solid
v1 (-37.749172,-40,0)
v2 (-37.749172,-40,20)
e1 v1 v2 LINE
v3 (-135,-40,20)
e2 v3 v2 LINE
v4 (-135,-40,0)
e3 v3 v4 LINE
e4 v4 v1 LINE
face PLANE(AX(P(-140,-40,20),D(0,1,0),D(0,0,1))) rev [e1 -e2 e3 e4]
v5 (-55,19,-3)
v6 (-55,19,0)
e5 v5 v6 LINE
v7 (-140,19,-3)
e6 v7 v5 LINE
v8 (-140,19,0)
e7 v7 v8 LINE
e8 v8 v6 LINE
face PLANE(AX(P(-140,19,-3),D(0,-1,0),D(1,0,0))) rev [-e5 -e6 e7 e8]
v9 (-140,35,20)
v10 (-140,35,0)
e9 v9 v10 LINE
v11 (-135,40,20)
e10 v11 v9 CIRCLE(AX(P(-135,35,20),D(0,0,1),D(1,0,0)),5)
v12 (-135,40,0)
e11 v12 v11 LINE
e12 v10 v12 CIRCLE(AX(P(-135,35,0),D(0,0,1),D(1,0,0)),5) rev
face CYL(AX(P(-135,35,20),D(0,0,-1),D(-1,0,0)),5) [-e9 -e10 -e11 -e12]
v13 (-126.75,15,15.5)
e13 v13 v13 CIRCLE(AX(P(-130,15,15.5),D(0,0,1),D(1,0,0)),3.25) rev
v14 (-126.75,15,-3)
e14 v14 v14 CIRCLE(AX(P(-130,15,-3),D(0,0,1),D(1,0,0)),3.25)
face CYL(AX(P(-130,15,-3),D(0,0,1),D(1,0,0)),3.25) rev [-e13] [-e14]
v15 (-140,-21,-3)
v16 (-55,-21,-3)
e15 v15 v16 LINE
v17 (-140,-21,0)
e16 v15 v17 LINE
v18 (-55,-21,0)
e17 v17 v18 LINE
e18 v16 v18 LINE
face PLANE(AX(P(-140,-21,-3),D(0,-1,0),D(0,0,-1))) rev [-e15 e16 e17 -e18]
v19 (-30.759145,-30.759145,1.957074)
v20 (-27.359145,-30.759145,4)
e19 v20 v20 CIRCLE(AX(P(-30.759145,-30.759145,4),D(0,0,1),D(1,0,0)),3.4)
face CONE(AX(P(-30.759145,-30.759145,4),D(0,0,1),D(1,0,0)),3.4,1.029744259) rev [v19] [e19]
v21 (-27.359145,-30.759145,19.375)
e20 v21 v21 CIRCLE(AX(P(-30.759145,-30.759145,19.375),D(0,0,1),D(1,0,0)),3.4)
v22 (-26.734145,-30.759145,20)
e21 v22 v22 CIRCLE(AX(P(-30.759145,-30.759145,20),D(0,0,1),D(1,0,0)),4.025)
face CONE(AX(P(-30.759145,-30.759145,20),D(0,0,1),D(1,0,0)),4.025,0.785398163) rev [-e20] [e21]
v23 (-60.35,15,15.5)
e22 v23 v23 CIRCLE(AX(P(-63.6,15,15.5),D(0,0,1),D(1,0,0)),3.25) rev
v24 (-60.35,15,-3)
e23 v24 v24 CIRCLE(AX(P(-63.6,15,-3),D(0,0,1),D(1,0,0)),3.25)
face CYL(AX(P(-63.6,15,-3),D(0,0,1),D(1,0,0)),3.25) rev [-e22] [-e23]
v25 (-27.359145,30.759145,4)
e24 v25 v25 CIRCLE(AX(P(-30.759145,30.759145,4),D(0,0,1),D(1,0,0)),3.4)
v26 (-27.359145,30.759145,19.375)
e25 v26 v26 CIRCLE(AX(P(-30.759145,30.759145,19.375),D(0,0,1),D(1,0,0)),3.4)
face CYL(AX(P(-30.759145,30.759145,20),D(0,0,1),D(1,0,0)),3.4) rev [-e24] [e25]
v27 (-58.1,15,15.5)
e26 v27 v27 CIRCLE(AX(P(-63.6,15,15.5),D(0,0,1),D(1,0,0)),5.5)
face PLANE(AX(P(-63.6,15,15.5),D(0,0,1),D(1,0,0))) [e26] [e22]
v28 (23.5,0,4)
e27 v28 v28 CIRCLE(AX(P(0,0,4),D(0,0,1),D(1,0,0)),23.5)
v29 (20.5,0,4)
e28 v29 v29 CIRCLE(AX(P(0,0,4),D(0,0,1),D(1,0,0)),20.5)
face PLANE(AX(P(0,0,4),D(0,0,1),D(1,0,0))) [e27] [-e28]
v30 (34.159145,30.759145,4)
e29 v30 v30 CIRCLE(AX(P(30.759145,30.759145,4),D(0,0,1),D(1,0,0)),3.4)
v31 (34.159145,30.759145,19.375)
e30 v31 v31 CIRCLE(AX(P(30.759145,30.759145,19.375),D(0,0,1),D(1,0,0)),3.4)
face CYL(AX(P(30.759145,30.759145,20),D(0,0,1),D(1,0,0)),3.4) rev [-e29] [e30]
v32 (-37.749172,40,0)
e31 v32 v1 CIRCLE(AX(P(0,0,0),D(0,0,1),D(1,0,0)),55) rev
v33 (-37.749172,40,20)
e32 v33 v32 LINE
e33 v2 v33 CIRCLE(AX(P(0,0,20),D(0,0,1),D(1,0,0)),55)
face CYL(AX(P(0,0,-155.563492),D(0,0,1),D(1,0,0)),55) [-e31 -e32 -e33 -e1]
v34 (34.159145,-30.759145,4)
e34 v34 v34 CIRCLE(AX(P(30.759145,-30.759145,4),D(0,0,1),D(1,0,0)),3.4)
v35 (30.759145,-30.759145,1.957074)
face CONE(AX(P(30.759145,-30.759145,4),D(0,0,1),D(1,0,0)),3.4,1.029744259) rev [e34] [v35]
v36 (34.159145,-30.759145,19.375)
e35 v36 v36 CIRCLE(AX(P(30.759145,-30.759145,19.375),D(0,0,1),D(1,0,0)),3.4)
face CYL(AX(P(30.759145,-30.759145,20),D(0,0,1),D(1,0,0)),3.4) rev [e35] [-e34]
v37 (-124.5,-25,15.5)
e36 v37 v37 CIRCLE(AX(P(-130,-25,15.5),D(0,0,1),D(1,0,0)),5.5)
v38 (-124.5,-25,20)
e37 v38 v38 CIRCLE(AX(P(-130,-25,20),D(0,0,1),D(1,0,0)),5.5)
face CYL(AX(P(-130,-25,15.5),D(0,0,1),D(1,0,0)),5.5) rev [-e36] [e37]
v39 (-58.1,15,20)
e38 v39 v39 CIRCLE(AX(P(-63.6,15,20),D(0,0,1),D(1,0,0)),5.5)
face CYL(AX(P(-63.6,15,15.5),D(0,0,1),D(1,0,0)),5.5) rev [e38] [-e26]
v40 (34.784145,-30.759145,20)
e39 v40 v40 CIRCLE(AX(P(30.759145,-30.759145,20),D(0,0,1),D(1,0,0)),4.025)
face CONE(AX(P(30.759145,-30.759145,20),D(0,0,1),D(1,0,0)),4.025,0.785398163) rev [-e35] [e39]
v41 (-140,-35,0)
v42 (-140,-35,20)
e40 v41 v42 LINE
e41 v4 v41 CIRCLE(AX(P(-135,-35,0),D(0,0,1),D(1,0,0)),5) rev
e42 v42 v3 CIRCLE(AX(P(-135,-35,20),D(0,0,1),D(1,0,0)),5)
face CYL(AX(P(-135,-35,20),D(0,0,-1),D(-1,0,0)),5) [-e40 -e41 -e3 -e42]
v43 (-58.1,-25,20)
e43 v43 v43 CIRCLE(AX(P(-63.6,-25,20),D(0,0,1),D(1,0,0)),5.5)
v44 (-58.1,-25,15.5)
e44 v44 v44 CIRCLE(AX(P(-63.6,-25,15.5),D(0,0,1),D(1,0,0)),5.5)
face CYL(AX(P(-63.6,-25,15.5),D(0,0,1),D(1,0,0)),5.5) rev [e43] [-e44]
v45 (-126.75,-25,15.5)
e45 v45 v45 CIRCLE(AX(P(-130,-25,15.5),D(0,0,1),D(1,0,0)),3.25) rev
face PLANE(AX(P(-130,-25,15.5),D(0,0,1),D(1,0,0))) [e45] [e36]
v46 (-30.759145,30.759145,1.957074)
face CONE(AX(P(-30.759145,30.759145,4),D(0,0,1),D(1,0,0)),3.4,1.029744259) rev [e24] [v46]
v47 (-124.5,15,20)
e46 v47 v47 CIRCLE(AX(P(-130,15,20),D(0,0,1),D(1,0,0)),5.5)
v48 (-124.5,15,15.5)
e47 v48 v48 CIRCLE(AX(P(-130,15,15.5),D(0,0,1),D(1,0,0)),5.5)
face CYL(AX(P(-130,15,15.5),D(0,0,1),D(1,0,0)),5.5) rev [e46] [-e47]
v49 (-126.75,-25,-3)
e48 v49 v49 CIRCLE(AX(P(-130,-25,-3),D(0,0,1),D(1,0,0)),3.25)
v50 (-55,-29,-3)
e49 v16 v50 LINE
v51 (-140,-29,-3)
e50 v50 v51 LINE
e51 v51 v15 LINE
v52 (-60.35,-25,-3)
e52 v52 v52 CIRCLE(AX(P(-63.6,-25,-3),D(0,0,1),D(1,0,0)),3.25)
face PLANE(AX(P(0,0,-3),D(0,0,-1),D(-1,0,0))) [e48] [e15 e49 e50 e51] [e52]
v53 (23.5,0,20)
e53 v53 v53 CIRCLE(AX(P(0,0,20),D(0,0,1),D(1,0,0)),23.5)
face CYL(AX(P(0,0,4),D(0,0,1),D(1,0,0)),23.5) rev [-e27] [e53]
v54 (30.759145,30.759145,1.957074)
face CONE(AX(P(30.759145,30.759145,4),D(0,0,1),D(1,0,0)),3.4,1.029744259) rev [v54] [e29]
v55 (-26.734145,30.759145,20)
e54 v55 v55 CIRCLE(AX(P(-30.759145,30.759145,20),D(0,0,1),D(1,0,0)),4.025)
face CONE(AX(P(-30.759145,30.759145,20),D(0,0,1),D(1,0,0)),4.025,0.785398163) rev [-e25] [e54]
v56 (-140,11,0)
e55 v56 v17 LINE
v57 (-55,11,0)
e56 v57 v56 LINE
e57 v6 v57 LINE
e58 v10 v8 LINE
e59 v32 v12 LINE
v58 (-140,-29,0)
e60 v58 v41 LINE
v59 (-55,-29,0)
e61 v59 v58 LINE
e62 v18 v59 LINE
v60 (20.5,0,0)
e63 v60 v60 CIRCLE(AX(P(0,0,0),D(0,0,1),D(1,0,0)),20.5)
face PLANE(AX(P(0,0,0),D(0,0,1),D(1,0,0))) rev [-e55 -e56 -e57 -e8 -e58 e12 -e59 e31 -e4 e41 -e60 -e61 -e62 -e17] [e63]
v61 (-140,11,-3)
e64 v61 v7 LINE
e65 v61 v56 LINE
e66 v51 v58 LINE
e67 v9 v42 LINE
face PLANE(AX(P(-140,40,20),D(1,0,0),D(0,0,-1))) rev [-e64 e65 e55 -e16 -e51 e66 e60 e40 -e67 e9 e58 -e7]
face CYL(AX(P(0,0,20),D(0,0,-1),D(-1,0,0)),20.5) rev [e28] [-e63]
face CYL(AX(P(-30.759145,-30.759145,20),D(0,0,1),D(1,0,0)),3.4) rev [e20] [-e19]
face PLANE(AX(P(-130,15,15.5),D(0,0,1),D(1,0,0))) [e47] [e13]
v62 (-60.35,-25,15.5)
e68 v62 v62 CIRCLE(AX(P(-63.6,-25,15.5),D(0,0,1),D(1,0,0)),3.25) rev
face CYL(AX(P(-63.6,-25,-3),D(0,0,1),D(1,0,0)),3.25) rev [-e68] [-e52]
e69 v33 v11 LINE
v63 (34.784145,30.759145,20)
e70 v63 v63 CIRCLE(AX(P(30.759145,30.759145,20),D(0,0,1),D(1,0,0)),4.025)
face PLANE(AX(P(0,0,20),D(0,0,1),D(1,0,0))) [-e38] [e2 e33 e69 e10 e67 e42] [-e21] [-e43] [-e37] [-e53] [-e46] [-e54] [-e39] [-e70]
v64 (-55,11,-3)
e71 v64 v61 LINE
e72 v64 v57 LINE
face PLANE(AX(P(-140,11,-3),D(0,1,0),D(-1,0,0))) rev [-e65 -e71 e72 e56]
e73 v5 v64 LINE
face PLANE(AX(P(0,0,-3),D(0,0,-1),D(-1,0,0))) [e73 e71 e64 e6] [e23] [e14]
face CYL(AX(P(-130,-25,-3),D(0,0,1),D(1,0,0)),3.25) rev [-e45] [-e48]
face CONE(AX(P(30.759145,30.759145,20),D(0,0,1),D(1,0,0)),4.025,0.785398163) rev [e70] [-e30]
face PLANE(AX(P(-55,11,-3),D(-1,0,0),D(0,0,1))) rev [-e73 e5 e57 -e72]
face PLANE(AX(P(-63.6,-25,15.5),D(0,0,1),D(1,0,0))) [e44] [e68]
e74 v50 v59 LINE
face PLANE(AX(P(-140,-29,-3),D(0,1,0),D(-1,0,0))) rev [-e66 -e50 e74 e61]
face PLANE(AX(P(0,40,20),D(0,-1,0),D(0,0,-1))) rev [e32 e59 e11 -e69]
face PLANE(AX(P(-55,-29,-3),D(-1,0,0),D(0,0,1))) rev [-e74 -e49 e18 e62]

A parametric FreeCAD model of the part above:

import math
import FreeCAD as App
import Part
import Sketcher


def edges_at(feature, points):
    """Names of the edges that pass closest to the given points."""
    edges = feature.Shape.Edges
    near = lambda p: min(range(len(edges)), key=lambda i: edges[i].distToShape(Part.Vertex(*p))[0])
    return sorted({f"Edge{near(p) + 1}" for p in points})


def add_polygon(sketch, points):
    """Adds a closed chain of lines whose ends are joined by coincident constraints."""
    first, n = sketch.GeometryCount, len(points)
    for a, b in zip(points, points[1:] + points[:1]):
        sketch.addGeometry(Part.LineSegment(App.Vector(*a, 0), App.Vector(*b, 0)), False)
    for i in range(n):
        sketch.addConstraint(Sketcher.Constraint("Coincident", first + i, 2, first + (i + 1) % n, 1))

doc = App.newDocument("Part")
body = doc.addObject("PartDesign::Body", "Body")

# Sketch on XY plane
sketch1 = body.newObject("Sketcher::SketchObject", "Sketch")
sketch1.AttachmentSupport = (doc.getObject("XY_Plane"), [""])
sketch1.MapMode = "FlatFace"
sketch1.addGeometry(Part.LineSegment(App.Vector(0, 40, 0), App.Vector(-140, 40, 0)), False)
sketch1.addGeometry(Part.LineSegment(App.Vector(-140, 40, 0), App.Vector(-140, -40, 0)), False)
sketch1.addGeometry(Part.LineSegment(App.Vector(-140, -40, 0), App.Vector(0, -40, 0)), False)
sketch1.addGeometry(Part.ArcOfCircle(Part.Circle(App.Vector(0, 0, 0), App.Vector(0, 0, 1), 40), math.radians(-90), math.radians(90)), False)
sketch1.addGeometry(Part.Circle(App.Vector(0, 0, 0), App.Vector(0, 0, 1), 20), False)
sketch1.addConstraint(Sketcher.Constraint("Coincident", 0, 2, 1, 1))
sketch1.addConstraint(Sketcher.Constraint("Coincident", 1, 2, 2, 1))
sketch1.addConstraint(Sketcher.Constraint("Tangent", 2, 2, 3, 1))
sketch1.addConstraint(Sketcher.Constraint("Tangent", 3, 2, 0, 1))
sketch1.addConstraint(Sketcher.Constraint("Horizontal", 0))
sketch1.addConstraint(Sketcher.Constraint("Vertical", 1))
sketch1.addConstraint(Sketcher.Constraint("Horizontal", 2))
sketch1.addConstraint(Sketcher.Constraint("Coincident", 3, 3, -1, 1))
sketch1.addConstraint(Sketcher.Constraint("Coincident", 4, 3, -1, 1))
sketch1.addConstraint(Sketcher.Constraint("Diameter", 4, 41.0))
sketch1.addConstraint(Sketcher.Constraint("Radius", 3, 40.0))
sketch1.addConstraint(Sketcher.Constraint("DistanceX", 0, 2, 0, 1, 140.0))
pad1 = body.newObject("PartDesign::Pad", "Pad")
pad1.Profile = sketch1
pad1.Length = 20

# Sketch on XY plane
sketch2 = body.newObject("Sketcher::SketchObject", "Sketch001")
sketch2.AttachmentSupport = (doc.getObject("XY_Plane"), [""])
sketch2.MapMode = "FlatFace"
sketch2.addGeometry(Part.Circle(App.Vector(0, 0, 0), App.Vector(0, 0, 1), 55), False)
sketch2.addGeometry(Part.Circle(App.Vector(0, 0, 0), App.Vector(0, 0, 1), 20), False)
sketch2.addConstraint(Sketcher.Constraint("Coincident", 0, 3, -1, 1))
sketch2.addConstraint(Sketcher.Constraint("Coincident", 1, 3, -1, 1))
sketch2.addConstraint(Sketcher.Constraint("Diameter", 0, 110.0))
sketch2.addConstraint(Sketcher.Constraint("Diameter", 1, 41.0))
pad2 = body.newObject("PartDesign::Pad", "Pad001")
pad2.Profile = sketch2
pad2.Length = 20

# Sketch on XY plane
sketch3 = body.newObject("Sketcher::SketchObject", "Sketch002")
sketch3.AttachmentSupport = (doc.getObject("XY_Plane"), [""])
sketch3.MapMode = "FlatFace"
sketch3.AttachmentOffset = App.Placement(App.Vector(0, 0, 20), App.Rotation())
sketch3.addGeometry(Part.Circle(App.Vector(0, 0, 0), App.Vector(0, 0, 1), 24), False)
sketch3.addConstraint(Sketcher.Constraint("Coincident", 0, 3, -1, 1))
sketch3.addConstraint(Sketcher.Constraint("Diameter", 0, 47.0))
pocket1 = body.newObject("PartDesign::Pocket", "Pocket")
pocket1.Profile = sketch3
pocket1.Length = 16

# Sketch on XY plane
sketch4 = body.newObject("Sketcher::SketchObject", "Sketch003")
sketch4.AttachmentSupport = (doc.getObject("XY_Plane"), [""])
sketch4.MapMode = "FlatFace"
add_polygon(sketch4, [(-55, -21), (-55, -29), (-140, -29), (-140, -21)])  # lines 0-3
add_polygon(sketch4, [(-55, 19), (-55, 11), (-140, 11), (-140, 19)])  # lines 4-7
sketch4.addConstraint(Sketcher.Constraint("Vertical", 0))
sketch4.addConstraint(Sketcher.Constraint("Horizontal", 1))
sketch4.addConstraint(Sketcher.Constraint("Vertical", 2))
sketch4.addConstraint(Sketcher.Constraint("Horizontal", 3))
sketch4.addConstraint(Sketcher.Constraint("Vertical", 4))
sketch4.addConstraint(Sketcher.Constraint("Horizontal", 5))
sketch4.addConstraint(Sketcher.Constraint("Vertical", 6))
sketch4.addConstraint(Sketcher.Constraint("Horizontal", 7))
sketch4.addConstraint(Sketcher.Constraint("Vertical", 3, 2, 4, 2))
sketch4.addConstraint(Sketcher.Constraint("Vertical", 2, 2, 5, 2))
sketch4.addConstraint(Sketcher.Constraint("Equal", 2, 4))
sketch4.addConstraint(Sketcher.Constraint("DistanceX", 1, 2, 1, 1, 85.0))
sketch4.addConstraint(Sketcher.Constraint("DistanceY", 0, 2, 0, 1, 8.0))
sketch4.addConstraint(Sketcher.Constraint("DistanceX", 0, 2, -1, 1, 55.0))
sketch4.addConstraint(Sketcher.Constraint("DistanceY", 0, 2, -1, 1, 29.0))
sketch4.addConstraint(Sketcher.Constraint("DistanceY", -1, 1, 4, 2, 11.0))
pad3 = body.newObject("PartDesign::Pad", "Pad002")
pad3.Profile = sketch4
pad3.Length = 3
pad3.Reversed = True

# Sketch on XY plane
sketch5 = body.newObject("Sketcher::SketchObject", "Sketch004")
sketch5.AttachmentSupport = (doc.getObject("XY_Plane"), [""])
sketch5.MapMode = "FlatFace"
sketch5.AttachmentOffset = App.Placement(App.Vector(0, 0, 20), App.Rotation())
sketch5.addGeometry(Part.Circle(App.Vector(-63.6, 15, 0), App.Vector(0, 0, 1), 3.2), False)
sketch5.addGeometry(Part.Circle(App.Vector(-130, 15, 0), App.Vector(0, 0, 1), 3.2), False)
sketch5.addGeometry(Part.Circle(App.Vector(-130, -25, 0), App.Vector(0, 0, 1), 3.2), False)
sketch5.addGeometry(Part.Circle(App.Vector(-63.6, -25, 0), App.Vector(0, 0, 1), 3.2), False)
sketch5.addConstraint(Sketcher.Constraint("Equal", 0, 1))
sketch5.addConstraint(Sketcher.Constraint("Equal", 1, 2))
sketch5.addConstraint(Sketcher.Constraint("Equal", 2, 3))
sketch5.addConstraint(Sketcher.Constraint("Horizontal", 0, 3, 1, 3))
sketch5.addConstraint(Sketcher.Constraint("Horizontal", 2, 3, 3, 3))
sketch5.addConstraint(Sketcher.Constraint("Vertical", 1, 3, 2, 3))
sketch5.addConstraint(Sketcher.Constraint("Vertical", 0, 3, 3, 3))
sketch5.addConstraint(Sketcher.Constraint("Diameter", 0, 6.5))
sketch5.addConstraint(Sketcher.Constraint("DistanceY", -1, 1, 0, 3, 15.0))
sketch5.addConstraint(Sketcher.Constraint("DistanceX", 1, 3, -1, 1, 130.0))
sketch5.addConstraint(Sketcher.Constraint("DistanceY", 2, 3, -1, 1, 25.0))
sketch5.addConstraint(Sketcher.Constraint("DistanceX", 0, 3, -1, 1, 63.6))
pocket2 = body.newObject("PartDesign::Pocket", "Pocket001")
pocket2.Profile = sketch5
pocket2.Type = "ThroughAll"

# Sketch on XY plane
sketch6 = body.newObject("Sketcher::SketchObject", "Sketch005")
sketch6.AttachmentSupport = (doc.getObject("XY_Plane"), [""])
sketch6.MapMode = "FlatFace"
sketch6.AttachmentOffset = App.Placement(App.Vector(0, 0, 20), App.Rotation())
sketch6.addGeometry(Part.Circle(App.Vector(-130, 15, 0), App.Vector(0, 0, 1), 6), False)
sketch6.addGeometry(Part.Circle(App.Vector(-64, 15, 0), App.Vector(0, 0, 1), 6), False)
sketch6.addGeometry(Part.Circle(App.Vector(-64, -25, 0), App.Vector(0, 0, 1), 6), False)
sketch6.addGeometry(Part.Circle(App.Vector(-130, -25, 0), App.Vector(0, 0, 1), 6), False)
sketch6.addConstraint(Sketcher.Constraint("Equal", 0, 1))
sketch6.addConstraint(Sketcher.Constraint("Equal", 1, 2))
sketch6.addConstraint(Sketcher.Constraint("Equal", 2, 3))
sketch6.addConstraint(Sketcher.Constraint("Horizontal", 0, 3, 1, 3))
sketch6.addConstraint(Sketcher.Constraint("Horizontal", 2, 3, 3, 3))
sketch6.addConstraint(Sketcher.Constraint("Vertical", 1, 3, 2, 3))
sketch6.addConstraint(Sketcher.Constraint("Vertical", 0, 3, 3, 3))
sketch6.addConstraint(Sketcher.Constraint("Diameter", 0, 11.0))
sketch6.addConstraint(Sketcher.Constraint("DistanceX", 0, 3, -1, 1, 130.0))
sketch6.addConstraint(Sketcher.Constraint("DistanceY", -1, 1, 0, 3, 15.0))
sketch6.addConstraint(Sketcher.Constraint("DistanceY", 2, 3, -1, 1, 25.0))
sketch6.addConstraint(Sketcher.Constraint("DistanceX", 1, 3, -1, 1, 63.6))
pocket3 = body.newObject("PartDesign::Pocket", "Pocket002")
pocket3.Profile = sketch6
pocket3.Length = 4.5
doc.recompute()

fillet = body.newObject("PartDesign::Fillet", "Fillet")
fillet.Base = (pocket3, edges_at(pocket3, [(-140, -40, 10), (-140, 40, 10)]))
fillet.Radius = 5

# Sketch on XY plane
sketch7 = body.newObject("Sketcher::SketchObject", "Sketch006")
sketch7.AttachmentSupport = (doc.getObject("XY_Plane"), [""])
sketch7.MapMode = "FlatFace"
sketch7.AttachmentOffset = App.Placement(App.Vector(0, 0, 20), App.Rotation())
sketch7.addGeometry(Part.Circle(App.Vector(30.8, 30.8, 0), App.Vector(0, 0, 1), 3.4), False)
sketch7.addGeometry(Part.Circle(App.Vector(-30.8, 30.8, 0), App.Vector(0, 0, 1), 3.4), False)
sketch7.addGeometry(Part.Circle(App.Vector(-30.8, -30.8, 0), App.Vector(0, 0, 1), 3.4), False)
sketch7.addGeometry(Part.Circle(App.Vector(30.8, -30.8, 0), App.Vector(0, 0, 1), 3.4), False)
sketch7.addConstraint(Sketcher.Constraint("Equal", 0, 1))
sketch7.addConstraint(Sketcher.Constraint("Equal", 1, 2))
sketch7.addConstraint(Sketcher.Constraint("Equal", 2, 3))
sketch7.addConstraint(Sketcher.Constraint("Symmetric", 0, 3, 2, 3, -1, 1))
sketch7.addConstraint(Sketcher.Constraint("Symmetric", 1, 3, 3, 3, -1, 1))
sketch7.addConstraint(Sketcher.Constraint("Symmetric", 0, 3, 1, 3, -2))
sketch7.addConstraint(Sketcher.Constraint("Diameter", 0, 6.8))
sketch7.addConstraint(Sketcher.Constraint("DistanceX", 1, 3, 0, 3, 61.51829))
sketch7.addConstraint(Sketcher.Constraint("DistanceY", 2, 3, 1, 3, 61.51829))
doc.recompute()
hole = body.newObject("PartDesign::Hole", "Hole")
hole.Profile = sketch7
hole.ThreadType = "None"
hole.Diameter = 6.8
hole.DepthType = "Dimension"
hole.Depth = 16
hole.DrillPoint = "Angled"
hole.DrillPointAngle = 118
hole.HoleCutType = "Countersink"
hole.HoleCutDiameter = 8.05
hole.HoleCutCountersinkAngle = 90

doc.recompute()
